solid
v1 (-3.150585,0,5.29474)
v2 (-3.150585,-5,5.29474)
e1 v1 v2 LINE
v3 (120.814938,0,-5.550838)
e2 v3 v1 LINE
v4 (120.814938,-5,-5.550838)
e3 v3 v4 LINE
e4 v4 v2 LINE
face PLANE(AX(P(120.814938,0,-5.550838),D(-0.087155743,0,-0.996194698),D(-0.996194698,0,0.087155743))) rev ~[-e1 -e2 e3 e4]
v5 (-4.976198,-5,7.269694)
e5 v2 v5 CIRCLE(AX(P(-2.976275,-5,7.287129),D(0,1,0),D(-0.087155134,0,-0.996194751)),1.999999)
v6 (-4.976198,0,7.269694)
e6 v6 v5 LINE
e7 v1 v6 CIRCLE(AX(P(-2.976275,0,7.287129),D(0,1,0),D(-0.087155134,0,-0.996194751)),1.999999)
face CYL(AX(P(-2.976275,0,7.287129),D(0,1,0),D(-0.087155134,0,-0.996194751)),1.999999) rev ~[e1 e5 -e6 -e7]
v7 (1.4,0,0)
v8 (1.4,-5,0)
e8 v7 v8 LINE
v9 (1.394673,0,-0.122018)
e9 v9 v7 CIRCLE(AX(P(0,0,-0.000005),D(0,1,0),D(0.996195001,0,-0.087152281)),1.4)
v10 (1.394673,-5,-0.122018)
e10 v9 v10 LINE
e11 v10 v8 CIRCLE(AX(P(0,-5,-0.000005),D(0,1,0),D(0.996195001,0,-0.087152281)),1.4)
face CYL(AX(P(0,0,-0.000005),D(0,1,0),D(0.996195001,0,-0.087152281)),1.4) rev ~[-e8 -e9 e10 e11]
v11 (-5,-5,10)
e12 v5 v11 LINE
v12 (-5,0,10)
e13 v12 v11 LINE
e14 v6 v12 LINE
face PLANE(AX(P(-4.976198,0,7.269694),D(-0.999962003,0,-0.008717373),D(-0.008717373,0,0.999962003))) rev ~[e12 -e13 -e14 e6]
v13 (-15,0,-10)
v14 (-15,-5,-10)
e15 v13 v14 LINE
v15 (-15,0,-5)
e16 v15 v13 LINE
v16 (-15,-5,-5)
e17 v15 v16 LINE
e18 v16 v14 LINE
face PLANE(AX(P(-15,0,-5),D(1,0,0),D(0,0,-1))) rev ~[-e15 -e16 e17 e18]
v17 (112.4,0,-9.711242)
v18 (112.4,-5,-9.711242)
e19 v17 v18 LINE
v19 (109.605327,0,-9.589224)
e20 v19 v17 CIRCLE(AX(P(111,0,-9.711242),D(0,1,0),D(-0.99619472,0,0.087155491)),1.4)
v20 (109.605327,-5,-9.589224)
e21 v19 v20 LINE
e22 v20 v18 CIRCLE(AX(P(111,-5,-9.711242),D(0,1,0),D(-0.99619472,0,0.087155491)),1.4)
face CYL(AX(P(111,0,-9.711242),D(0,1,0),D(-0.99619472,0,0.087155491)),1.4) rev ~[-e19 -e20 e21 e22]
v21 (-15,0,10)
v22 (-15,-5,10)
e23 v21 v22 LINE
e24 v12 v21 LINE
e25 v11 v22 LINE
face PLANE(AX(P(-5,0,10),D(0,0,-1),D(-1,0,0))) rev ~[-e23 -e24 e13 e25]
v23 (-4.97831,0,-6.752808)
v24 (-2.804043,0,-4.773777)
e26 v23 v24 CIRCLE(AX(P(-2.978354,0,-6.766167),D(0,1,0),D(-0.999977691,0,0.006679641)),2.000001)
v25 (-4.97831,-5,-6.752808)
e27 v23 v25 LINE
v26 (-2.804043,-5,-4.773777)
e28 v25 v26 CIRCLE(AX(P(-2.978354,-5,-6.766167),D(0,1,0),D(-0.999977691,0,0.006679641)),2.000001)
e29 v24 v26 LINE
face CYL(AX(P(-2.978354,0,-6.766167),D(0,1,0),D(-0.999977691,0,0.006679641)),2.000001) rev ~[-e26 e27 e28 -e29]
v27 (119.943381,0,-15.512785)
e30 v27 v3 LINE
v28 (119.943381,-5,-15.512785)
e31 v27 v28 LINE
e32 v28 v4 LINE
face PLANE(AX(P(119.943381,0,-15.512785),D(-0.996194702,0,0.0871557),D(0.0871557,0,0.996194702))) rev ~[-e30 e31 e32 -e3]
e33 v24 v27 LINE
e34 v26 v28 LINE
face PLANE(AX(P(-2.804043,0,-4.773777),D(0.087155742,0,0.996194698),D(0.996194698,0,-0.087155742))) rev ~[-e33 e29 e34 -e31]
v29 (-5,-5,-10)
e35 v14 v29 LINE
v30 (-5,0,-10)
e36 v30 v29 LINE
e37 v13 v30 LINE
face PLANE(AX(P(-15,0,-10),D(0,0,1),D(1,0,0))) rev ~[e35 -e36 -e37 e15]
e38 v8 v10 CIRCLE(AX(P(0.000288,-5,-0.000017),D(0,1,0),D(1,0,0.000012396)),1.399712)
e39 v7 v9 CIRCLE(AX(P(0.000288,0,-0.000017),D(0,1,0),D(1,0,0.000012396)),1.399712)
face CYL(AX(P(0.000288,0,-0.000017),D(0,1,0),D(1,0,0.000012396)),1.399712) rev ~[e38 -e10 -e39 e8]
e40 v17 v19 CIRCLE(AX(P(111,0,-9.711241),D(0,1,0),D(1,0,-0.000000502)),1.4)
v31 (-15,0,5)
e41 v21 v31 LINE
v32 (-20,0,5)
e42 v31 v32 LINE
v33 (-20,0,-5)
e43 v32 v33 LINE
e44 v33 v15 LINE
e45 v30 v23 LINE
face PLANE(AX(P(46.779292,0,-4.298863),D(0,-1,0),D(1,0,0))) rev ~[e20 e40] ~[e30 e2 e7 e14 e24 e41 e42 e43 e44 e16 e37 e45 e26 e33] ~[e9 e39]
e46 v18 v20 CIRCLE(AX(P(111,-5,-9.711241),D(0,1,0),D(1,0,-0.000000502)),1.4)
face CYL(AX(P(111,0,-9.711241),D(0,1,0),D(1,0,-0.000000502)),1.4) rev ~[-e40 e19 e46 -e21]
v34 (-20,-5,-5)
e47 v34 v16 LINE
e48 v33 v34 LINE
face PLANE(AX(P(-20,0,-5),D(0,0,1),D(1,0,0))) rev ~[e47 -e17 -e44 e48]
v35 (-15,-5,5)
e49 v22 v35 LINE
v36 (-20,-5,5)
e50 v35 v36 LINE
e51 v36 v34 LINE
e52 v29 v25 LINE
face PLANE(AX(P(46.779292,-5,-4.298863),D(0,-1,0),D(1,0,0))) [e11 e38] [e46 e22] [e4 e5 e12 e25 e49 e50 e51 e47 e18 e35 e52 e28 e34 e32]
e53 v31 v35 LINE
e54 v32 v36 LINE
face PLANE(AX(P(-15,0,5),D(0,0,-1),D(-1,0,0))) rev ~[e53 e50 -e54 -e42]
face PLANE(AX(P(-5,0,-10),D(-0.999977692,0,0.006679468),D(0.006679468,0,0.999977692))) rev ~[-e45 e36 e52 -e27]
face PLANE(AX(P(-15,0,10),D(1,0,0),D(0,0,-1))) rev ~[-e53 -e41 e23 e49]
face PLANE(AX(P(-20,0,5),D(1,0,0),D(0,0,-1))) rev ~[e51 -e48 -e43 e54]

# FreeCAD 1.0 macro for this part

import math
import FreeCAD as App
import Part
import Sketcher
Q = App.Units.Quantity

doc = App.newDocument("Part")
body = doc.addObject("PartDesign::Body", "Body")

# Sketch on XZ plane
sketch1 = body.newObject("Sketcher::SketchObject", "Sketch")
sketch1.AttachmentSupport = (doc.getObject("XZ_Plane"), [""])
sketch1.MapMode = "FlatFace"
sketch1.addGeometry(Part.LineSegment(App.Vector(-15, 5, 0), App.Vector(-20, 5, 0)), False)
sketch1.addGeometry(Part.LineSegment(App.Vector(-20, 5, 0), App.Vector(-20, -5, 0)), False)
sketch1.addGeometry(Part.LineSegment(App.Vector(-20, -5, 0), App.Vector(-15, -5, 0)), False)
sketch1.addGeometry(Part.LineSegment(App.Vector(-15, -5, 0), App.Vector(-15, -10, 0)), False)
sketch1.addGeometry(Part.LineSegment(App.Vector(-15, -10, 0), App.Vector(-5, -10, 0)), False)
sketch1.addGeometry(Part.LineSegment(App.Vector(-5, -10, 0), App.Vector(-4.97831, -6.752808, 0)), False)
sketch1.addGeometry(Part.ArcOfCircle(Part.Circle(App.Vector(-2.978354, -6.766167, 0), App.Vector(0, 0, 1), 2.000001), math.radians(85.000022), math.radians(179.617282)), False)
sketch1.addGeometry(Part.LineSegment(App.Vector(-2.804043, -4.773777, 0), App.Vector(119.943381, -15.512785, 0)), False)
sketch1.addGeometry(Part.LineSegment(App.Vector(119.943381, -15.512785, 0), App.Vector(120.814938, -5.550838, 0)), False)
sketch1.addGeometry(Part.LineSegment(App.Vector(120.814938, -5.550838, 0), App.Vector(-3.150585, 5.29474, 0)), False)
sketch1.addGeometry(Part.ArcOfCircle(Part.Circle(App.Vector(-2.976275, 7.287129, 0), App.Vector(0, 0, 1), 1.999999), math.radians(-179.500526), math.radians(-94.999965)), False)
sketch1.addGeometry(Part.LineSegment(App.Vector(-4.976198, 7.269694, 0), App.Vector(-5, 10, 0)), False)
sketch1.addGeometry(Part.LineSegment(App.Vector(-5, 10, 0), App.Vector(-15, 10, 0)), False)
sketch1.addGeometry(Part.LineSegment(App.Vector(-15, 10, 0), App.Vector(-15, 5, 0)), False)
sketch1.addGeometry(Part.ArcOfCircle(Part.Circle(App.Vector(111, -9.711242, 0), App.Vector(0, 0, 1), 1.4), math.radians(-0.000012), math.radians(175.000015)), False)
sketch1.addGeometry(Part.ArcOfCircle(Part.Circle(App.Vector(111, -9.711241, 0), App.Vector(0, 0, 1), 1.4), math.radians(175.000031), math.radians(359.999971)), False)
sketch1.addGeometry(Part.ArcOfCircle(Part.Circle(App.Vector(0.000288, -0.000017, 0), App.Vector(0, 0, 1), 1.399712), math.radians(-5.000316), math.radians(0.00071)), False)
sketch1.addGeometry(Part.ArcOfCircle(Part.Circle(App.Vector(0, -0.000005, 0), App.Vector(0, 0, 1), 1.4), math.radians(0.000195), math.radians(355.000199)), False)
sketch1.addConstraint(Sketcher.Constraint("Coincident", 0, 2, 1, 1))
sketch1.addConstraint(Sketcher.Constraint("Coincident", 1, 2, 2, 1))
sketch1.addConstraint(Sketcher.Constraint("Coincident", 2, 2, 3, 1))
sketch1.addConstraint(Sketcher.Constraint("Coincident", 3, 2, 4, 1))
sketch1.addConstraint(Sketcher.Constraint("Coincident", 4, 2, 5, 1))
sketch1.addConstraint(Sketcher.Constraint("Tangent", 5, 2, 6, 2))
sketch1.addConstraint(Sketcher.Constraint("Tangent", 6, 1, 7, 1))
sketch1.addConstraint(Sketcher.Constraint("Coincident", 7, 2, 8, 1))
sketch1.addConstraint(Sketcher.Constraint("Coincident", 8, 2, 9, 1))
sketch1.addConstraint(Sketcher.Constraint("Tangent", 9, 2, 10, 2))
sketch1.addConstraint(Sketcher.Constraint("Tangent", 10, 1, 11, 1))
sketch1.addConstraint(Sketcher.Constraint("Coincident", 11, 2, 12, 1))
sketch1.addConstraint(Sketcher.Constraint("Coincident", 12, 2, 13, 1))
sketch1.addConstraint(Sketcher.Constraint("Coincident", 13, 2, 0, 1))
sketch1.addConstraint(Sketcher.Constraint("Tangent", 14, 1, 15, 2))
sketch1.addConstraint(Sketcher.Constraint("Coincident", 15, 1, 14, 2))
sketch1.addConstraint(Sketcher.Constraint("Coincident", 16, 1, 17, 2))
sketch1.addConstraint(Sketcher.Constraint("Coincident", 17, 1, 16, 2))
sketch1.addConstraint(Sketcher.Constraint("Horizontal", 0))
sketch1.addConstraint(Sketcher.Constraint("Vertical", 1))
sketch1.addConstraint(Sketcher.Constraint("Horizontal", 2))
sketch1.addConstraint(Sketcher.Constraint("Vertical", 3))
sketch1.addConstraint(Sketcher.Constraint("Horizontal", 4))
sketch1.addConstraint(Sketcher.Constraint("Horizontal", 12))
sketch1.addConstraint(Sketcher.Constraint("Vertical", 13))
sketch1.addConstraint(Sketcher.Constraint("Coincident", 17, 3, -1, 1))
sketch1.addConstraint(Sketcher.Constraint("Equal", 6, 10))
sketch1.addConstraint(Sketcher.Constraint("Equal", 15, 17))
sketch1.addConstraint(Sketcher.Constraint("Symmetric", 4, 2, 11, 2, -1))
sketch1.addConstraint(Sketcher.Constraint("Symmetric", 2, 2, 13, 2, -1))
sketch1.addConstraint(Sketcher.Constraint("PointOnObject", 17, 1, -1))
sketch1.addConstraint(Sketcher.Constraint("Perpendicular", 7, 8))
sketch1.addConstraint(Sketcher.Constraint("Perpendicular", 8, 9))
sketch1.addConstraint(Sketcher.Constraint("Horizontal", 15, 3, 14, 1))
sketch1.addConstraint(Sketcher.Constraint("Equal", 12, 1))
sketch1.addConstraint(Sketcher.Constraint("Equal", 2, 3))
sketch1.addConstraint(Sketcher.Constraint("Radius", 6, Q("2.000001 mm")))
sketch1.addConstraint(Sketcher.Constraint("Radius", 14, Q("1.4 mm")))
sketch1.addConstraint(Sketcher.Constraint("DistanceX", 0, 2, 0, 1, Q("5 mm")))
sketch1.addConstraint(Sketcher.Constraint("DistanceX", 4, 1, 4, 2, Q("10 mm")))
sketch1.addConstraint(Sketcher.Constraint("Angle", 7, Q("-5 deg")))
sketch1.addConstraint(Sketcher.Constraint("Distance", 8, Q("10 mm")))
sketch1.addConstraint(Sketcher.Constraint("DistanceX", -1, 1, 14, 3, Q("111 mm")))
sketch1.addConstraint(Sketcher.Constraint("DistanceX", 0, 2, -1, 1, Q("20 mm")))
sketch1.addConstraint(Sketcher.Constraint("Radius", 16, Q("1.399712 mm")))
sketch1.addConstraint(Sketcher.Constraint("DistanceY", 16, 1, 16, 3, Q("0.122001 mm")))
sketch1.addConstraint(Sketcher.Constraint("Distance", 7, Q("123.216299 mm")))
sketch1.addConstraint(Sketcher.Constraint("DistanceX", 10, 1, -1, 1, Q("4.976198 mm")))
sketch1.addConstraint(Sketcher.Constraint("DistanceY", 17, 3, 10, 1, Q("7.269699 mm")))
sketch1.addConstraint(Sketcher.Constraint("Distance", 9, Q("124.439051 mm")))
sketch1.addConstraint(Sketcher.Constraint("DistanceY", 14, 3, -1, 1, Q("9.711242 mm")))
sketch1.addConstraint(Sketcher.Constraint("DistanceY", 14, 1, 15, 1, Q("0.122018 mm")))
pad1 = body.newObject("PartDesign::Pad", "Pad")
pad1.Profile = sketch1
pad1.Length = 5

doc.recompute()
